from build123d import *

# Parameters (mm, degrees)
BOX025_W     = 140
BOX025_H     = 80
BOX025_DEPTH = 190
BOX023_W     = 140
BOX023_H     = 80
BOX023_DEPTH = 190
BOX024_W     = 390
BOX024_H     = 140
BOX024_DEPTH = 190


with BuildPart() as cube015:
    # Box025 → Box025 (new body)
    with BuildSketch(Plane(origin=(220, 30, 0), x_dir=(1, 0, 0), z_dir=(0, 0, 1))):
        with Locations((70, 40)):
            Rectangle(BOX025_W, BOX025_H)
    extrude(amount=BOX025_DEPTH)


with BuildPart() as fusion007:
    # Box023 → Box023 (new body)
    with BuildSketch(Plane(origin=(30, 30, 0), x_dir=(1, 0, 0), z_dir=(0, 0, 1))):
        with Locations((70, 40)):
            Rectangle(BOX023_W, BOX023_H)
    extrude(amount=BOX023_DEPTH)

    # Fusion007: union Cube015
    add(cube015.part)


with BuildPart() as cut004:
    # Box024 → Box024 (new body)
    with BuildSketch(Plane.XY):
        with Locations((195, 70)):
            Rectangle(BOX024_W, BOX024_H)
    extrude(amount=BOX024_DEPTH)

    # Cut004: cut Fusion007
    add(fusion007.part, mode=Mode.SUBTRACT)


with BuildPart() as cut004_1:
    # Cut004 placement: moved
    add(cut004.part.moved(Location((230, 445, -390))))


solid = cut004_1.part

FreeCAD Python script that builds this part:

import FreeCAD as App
import Part
import Sketcher

V = App.Vector
Q = App.Units.Quantity


def add_polygon(sketch, points):
    """Adds a closed chain of lines whose ends are joined by coincident constraints."""
    first, n = sketch.GeometryCount, len(points)
    for a, b in zip(points, points[1:] + points[:1]):
        sketch.addGeometry(Part.LineSegment(App.Vector(*a, 0), App.Vector(*b, 0)), False)
    for i in range(n):
        sketch.addConstraint(Sketcher.Constraint("Coincident", first + i, 2, first + (i + 1) % n, 1))

doc = App.newDocument("Part")
body = doc.addObject("PartDesign::Body", "Body")

# Sketch on XY plane
sketch1 = doc.addObject("Sketcher::SketchObject", "Sketch")
body.addObject(sketch1)
sketch1.AttachmentSupport = (doc.XY_Plane, [""])
sketch1.MapMode = "FlatFace"
add_polygon(sketch1, [(220, 110), (220, 30), (360, 30), (360, 110)])  # lines 0-3
sketch1.addConstraint([
    Sketcher.Constraint("Vertical", 0),
    Sketcher.Constraint("Horizontal", 1),
    Sketcher.Constraint("Vertical", 2),
    Sketcher.Constraint("Horizontal", 3),
    Sketcher.Constraint("DistanceX", 1, 1, 1, 2, Q("140 mm")),
    Sketcher.Constraint("DistanceY", 0, 2, 0, 1, Q("80 mm")),
    Sketcher.Constraint("DistanceX", -1, 1, 0, 2, Q("220 mm")),
    Sketcher.Constraint("DistanceY", -1, 1, 0, 2, Q("30 mm")),
])
pad1 = doc.addObject("PartDesign::Pad", "Pad")
body.addObject(pad1)
pad1.Profile = sketch1
pad1.Length = 190
body2 = doc.addObject("PartDesign::Body", "Body001")
body2.AllowCompound = True

# Sketch on XY plane
sketch2 = doc.addObject("Sketcher::SketchObject", "Sketch001")
body2.addObject(sketch2)
sketch2.AttachmentSupport = (doc.getObject("XY_Plane001"), [""])
sketch2.MapMode = "FlatFace"
add_polygon(sketch2, [(30, 110), (30, 30), (170, 30), (170, 110)])  # lines 0-3
sketch2.addConstraint([
    Sketcher.Constraint("Vertical", 0),
    Sketcher.Constraint("Horizontal", 1),
    Sketcher.Constraint("Vertical", 2),
    Sketcher.Constraint("Horizontal", 3),
    Sketcher.Constraint("DistanceX", 1, 1, 1, 2, Q("140 mm")),
    Sketcher.Constraint("DistanceY", 0, 2, 0, 1, Q("80 mm")),
    Sketcher.Constraint("DistanceX", -1, 1, 0, 2, Q("30 mm")),
    Sketcher.Constraint("DistanceY", -1, 1, 0, 2, Q("30 mm")),
])
pad2 = doc.addObject("PartDesign::Pad", "Pad001")
body2.addObject(pad2)
pad2.Profile = sketch2
pad2.Length = 190
doc.recompute()

boolean = doc.addObject("PartDesign::Boolean", "Boolean")
body2.addObject(boolean)
boolean.Type = "Fuse"
boolean.addObjects([body])
body3 = doc.addObject("PartDesign::Body", "Body002")

# Sketch on XY plane
sketch3 = doc.addObject("Sketcher::SketchObject", "Sketch002")
body3.addObject(sketch3)
sketch3.AttachmentSupport = (doc.getObject("XY_Plane002"), [""])
sketch3.MapMode = "FlatFace"
add_polygon(sketch3, [(0, 140), (0, 0), (390, 0), (390, 140)])  # lines 0-3
sketch3.addConstraint([
    Sketcher.Constraint("Vertical", 0),
    Sketcher.Constraint("Horizontal", 1),
    Sketcher.Constraint("Vertical", 2),
    Sketcher.Constraint("Horizontal", 3),
    Sketcher.Constraint("Coincident", 0, 2, -1, 1),
    Sketcher.Constraint("DistanceX", 1, 1, 1, 2, Q("390 mm")),
    Sketcher.Constraint("DistanceY", 0, 2, 0, 1, Q("140 mm")),
])
pad3 = doc.addObject("PartDesign::Pad", "Pad002")
body3.addObject(pad3)
pad3.Profile = sketch3
pad3.Length = 190
doc.recompute()

boolean2 = doc.addObject("PartDesign::Boolean", "Boolean001")
body3.addObject(boolean2)
boolean2.Type = "Cut"
boolean2.addObjects([body2])
body4 = doc.addObject("PartDesign::Body", "Body003")
doc.recompute()

body3.Placement = App.Placement(V(230, 445, -390), App.Rotation(V(0, 0, 1), 0))
boolean3 = doc.addObject("PartDesign::Boolean", "Boolean002")
body4.addObject(boolean3)
boolean3.Type = "Fuse"
boolean3.addObjects([body3])

doc.recompute()
